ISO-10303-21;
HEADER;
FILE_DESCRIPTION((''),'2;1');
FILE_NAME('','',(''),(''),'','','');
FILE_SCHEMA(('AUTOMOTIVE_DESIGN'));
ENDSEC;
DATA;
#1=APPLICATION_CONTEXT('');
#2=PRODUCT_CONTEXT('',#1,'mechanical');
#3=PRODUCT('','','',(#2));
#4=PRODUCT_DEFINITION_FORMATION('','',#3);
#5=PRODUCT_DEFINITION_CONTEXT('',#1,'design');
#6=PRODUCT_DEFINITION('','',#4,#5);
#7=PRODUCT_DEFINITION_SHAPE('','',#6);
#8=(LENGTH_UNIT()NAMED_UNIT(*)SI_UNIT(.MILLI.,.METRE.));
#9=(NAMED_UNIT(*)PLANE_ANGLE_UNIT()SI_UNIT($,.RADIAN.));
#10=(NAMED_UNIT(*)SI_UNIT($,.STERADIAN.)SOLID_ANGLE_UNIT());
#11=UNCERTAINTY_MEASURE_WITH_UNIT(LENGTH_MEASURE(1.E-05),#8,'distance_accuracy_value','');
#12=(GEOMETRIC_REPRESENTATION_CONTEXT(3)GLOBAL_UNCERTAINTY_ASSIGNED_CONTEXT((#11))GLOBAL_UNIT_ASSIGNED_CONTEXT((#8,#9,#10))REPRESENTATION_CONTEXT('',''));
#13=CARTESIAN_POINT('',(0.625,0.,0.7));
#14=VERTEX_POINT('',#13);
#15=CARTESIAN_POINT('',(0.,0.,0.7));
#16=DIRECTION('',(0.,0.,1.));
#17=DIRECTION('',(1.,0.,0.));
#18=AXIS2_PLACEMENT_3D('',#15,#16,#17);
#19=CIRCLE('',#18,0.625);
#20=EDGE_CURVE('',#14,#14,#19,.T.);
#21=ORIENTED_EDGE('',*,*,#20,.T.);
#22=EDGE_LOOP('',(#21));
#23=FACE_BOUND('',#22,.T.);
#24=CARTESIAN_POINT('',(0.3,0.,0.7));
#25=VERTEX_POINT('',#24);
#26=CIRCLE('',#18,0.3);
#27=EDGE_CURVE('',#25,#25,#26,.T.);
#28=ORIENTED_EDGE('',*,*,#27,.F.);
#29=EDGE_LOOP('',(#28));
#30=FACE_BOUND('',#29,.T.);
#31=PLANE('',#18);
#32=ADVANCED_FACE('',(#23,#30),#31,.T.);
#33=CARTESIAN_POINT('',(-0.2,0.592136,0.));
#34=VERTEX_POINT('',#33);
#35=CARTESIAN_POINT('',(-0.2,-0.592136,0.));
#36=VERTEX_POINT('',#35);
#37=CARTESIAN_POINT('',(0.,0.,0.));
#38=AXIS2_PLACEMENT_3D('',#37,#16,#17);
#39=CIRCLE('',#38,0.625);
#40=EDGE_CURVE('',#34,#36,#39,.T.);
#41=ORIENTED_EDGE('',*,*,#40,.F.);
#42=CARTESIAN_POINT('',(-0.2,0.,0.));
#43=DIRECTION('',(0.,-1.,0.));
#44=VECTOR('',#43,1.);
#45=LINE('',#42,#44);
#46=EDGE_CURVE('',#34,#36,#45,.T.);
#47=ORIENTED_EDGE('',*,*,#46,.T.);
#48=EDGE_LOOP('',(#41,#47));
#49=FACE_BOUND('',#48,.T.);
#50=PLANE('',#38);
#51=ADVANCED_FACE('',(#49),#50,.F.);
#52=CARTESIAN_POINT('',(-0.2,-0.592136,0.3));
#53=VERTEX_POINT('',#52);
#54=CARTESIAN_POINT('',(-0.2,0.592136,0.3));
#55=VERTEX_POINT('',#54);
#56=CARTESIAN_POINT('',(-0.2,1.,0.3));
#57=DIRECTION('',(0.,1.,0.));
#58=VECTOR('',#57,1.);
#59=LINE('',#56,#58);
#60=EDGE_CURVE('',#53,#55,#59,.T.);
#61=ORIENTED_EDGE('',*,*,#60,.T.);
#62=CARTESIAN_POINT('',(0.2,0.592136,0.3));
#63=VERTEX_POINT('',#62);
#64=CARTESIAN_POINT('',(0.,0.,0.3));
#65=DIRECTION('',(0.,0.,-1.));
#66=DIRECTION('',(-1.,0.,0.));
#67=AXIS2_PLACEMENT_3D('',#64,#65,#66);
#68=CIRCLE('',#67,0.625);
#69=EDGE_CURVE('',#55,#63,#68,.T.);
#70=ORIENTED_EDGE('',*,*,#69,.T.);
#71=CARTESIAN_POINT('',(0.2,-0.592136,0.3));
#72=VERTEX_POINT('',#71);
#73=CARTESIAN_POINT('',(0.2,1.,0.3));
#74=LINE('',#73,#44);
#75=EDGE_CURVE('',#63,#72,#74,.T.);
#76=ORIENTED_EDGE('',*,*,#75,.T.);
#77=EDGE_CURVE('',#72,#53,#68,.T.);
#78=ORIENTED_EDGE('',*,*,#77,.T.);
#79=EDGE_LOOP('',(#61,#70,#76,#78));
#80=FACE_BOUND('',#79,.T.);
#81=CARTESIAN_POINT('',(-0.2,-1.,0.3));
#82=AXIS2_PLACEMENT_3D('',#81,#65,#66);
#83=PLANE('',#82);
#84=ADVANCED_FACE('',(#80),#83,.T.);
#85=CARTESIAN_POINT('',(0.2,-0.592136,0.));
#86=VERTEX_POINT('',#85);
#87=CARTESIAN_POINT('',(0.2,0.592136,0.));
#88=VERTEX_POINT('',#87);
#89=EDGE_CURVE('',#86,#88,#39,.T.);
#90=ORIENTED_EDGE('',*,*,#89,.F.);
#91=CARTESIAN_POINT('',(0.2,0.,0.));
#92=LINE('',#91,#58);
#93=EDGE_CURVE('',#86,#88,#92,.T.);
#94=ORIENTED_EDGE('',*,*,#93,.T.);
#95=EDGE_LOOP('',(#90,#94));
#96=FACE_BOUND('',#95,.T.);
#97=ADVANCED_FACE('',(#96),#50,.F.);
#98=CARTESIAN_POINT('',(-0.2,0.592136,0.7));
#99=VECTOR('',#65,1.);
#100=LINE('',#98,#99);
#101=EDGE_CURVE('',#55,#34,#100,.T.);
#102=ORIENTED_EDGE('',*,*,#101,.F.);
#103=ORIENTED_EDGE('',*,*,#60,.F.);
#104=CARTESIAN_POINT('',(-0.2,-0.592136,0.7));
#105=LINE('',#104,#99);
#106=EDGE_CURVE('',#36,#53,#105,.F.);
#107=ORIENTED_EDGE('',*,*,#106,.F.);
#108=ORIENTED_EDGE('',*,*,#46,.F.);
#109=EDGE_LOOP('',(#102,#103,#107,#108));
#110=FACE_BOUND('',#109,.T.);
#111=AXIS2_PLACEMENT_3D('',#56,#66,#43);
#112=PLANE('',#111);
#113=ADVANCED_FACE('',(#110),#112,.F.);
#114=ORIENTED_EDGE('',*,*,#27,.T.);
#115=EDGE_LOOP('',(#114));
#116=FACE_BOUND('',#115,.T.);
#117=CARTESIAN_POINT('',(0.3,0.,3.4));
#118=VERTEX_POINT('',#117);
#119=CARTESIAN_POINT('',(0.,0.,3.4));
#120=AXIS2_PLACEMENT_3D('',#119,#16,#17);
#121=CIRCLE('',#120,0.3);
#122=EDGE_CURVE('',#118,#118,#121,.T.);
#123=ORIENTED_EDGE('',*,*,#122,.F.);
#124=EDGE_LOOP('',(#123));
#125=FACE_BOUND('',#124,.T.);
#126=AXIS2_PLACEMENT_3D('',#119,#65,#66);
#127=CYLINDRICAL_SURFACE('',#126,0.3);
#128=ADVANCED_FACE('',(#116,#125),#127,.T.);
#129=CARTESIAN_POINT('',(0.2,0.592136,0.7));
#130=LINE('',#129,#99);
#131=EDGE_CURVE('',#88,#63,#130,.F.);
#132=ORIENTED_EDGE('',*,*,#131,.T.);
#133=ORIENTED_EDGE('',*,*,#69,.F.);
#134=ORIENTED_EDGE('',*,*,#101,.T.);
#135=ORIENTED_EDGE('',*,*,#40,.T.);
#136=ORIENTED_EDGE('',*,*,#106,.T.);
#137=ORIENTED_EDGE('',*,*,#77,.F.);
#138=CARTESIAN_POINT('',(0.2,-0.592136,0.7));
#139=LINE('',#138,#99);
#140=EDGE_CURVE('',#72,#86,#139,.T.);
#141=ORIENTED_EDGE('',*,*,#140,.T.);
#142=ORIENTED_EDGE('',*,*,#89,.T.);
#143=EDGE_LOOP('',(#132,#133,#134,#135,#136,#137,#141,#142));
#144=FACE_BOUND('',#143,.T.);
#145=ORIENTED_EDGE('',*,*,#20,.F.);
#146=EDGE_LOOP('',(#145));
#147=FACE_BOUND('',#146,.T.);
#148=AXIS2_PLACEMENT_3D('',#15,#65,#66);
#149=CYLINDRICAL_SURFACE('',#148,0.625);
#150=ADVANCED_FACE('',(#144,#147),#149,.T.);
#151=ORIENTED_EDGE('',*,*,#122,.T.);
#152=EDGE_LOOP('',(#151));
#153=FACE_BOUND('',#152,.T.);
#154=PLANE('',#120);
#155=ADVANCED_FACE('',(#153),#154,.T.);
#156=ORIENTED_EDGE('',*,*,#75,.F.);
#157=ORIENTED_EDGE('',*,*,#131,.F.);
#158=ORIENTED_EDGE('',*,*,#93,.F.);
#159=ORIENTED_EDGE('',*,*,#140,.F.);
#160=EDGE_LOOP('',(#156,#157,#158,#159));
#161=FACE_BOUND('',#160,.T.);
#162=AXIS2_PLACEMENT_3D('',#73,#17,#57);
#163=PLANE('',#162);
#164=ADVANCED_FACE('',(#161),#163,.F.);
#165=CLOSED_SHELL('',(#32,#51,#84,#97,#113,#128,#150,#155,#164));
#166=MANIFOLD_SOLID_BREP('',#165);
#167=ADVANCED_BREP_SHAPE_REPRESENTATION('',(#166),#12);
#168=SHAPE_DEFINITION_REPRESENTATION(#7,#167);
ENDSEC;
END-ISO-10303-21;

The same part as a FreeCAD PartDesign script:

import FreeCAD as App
import Part
import Sketcher
Q = App.Units.Quantity

doc = App.newDocument("Part")
params = doc.addObject("Spreadsheet::Sheet", "Params")
for row, (alias, value) in enumerate([
    ("sketch1_diameter", "1.25 mm"),
    ("pad1_length", "0.7 mm"),
    ("sketch2_diameter", "0.6 mm"),
    ("pad2_length", "2.7 mm"),
    ("sketch3_height", "2 mm"),
    ("sketch3_width", "0.4 mm"),
    ("pocket1_length", "0.3 mm"),
], start=1):
    params.set(f"A{row}", alias)
    params.set(f"B{row}", "=" + value)
    params.setAlias(f"B{row}", alias)

body = doc.addObject("PartDesign::Body", "Body")

# Sketch on XY plane
sketch1 = doc.addObject("Sketcher::SketchObject", "Sketch")
body.addObject(sketch1)
sketch1.AttachmentSupport = (doc.XY_Plane, [""])
sketch1.MapMode = "FlatFace"
sketch1.addGeometry(Part.Circle(App.Vector(0, 0, 0), App.Vector(0, 0, 1), 0.6), False)
sketch1.addConstraint([
    Sketcher.Constraint("Coincident", 0, 3, -1, 1),
    Sketcher.Constraint("Diameter", 0, Q("1.25 mm")),
])
sketch1.setExpression("Constraints[1]", "Params.sketch1_diameter")
pad1 = doc.addObject("PartDesign::Pad", "Pad")
body.addObject(pad1)
pad1.Profile = sketch1
pad1.setExpression("Length", "Params.pad1_length")

# Sketch on XY plane
sketch2 = doc.addObject("Sketcher::SketchObject", "Sketch001")
body.addObject(sketch2)
sketch2.AttachmentSupport = (doc.XY_Plane, [""])
sketch2.MapMode = "FlatFace"
sketch2.AttachmentOffset = App.Placement(App.Vector(0, 0, 0.7), App.Rotation())
sketch2.addGeometry(Part.Circle(App.Vector(0, 0, 0), App.Vector(0, 0, 1), 0.3), False)
sketch2.addConstraint([
    Sketcher.Constraint("Coincident", 0, 3, -1, 1),
    Sketcher.Constraint("Diameter", 0, Q("0.6 mm")),
])
sketch2.setExpression("Constraints[1]", "Params.sketch2_diameter")
pad2 = doc.addObject("PartDesign::Pad", "Pad001")
body.addObject(pad2)
pad2.Profile = sketch2
pad2.setExpression("Length", "Params.pad2_length")

# Sketch on XY plane
sketch3 = doc.addObject("Sketcher::SketchObject", "Sketch002")
body.addObject(sketch3)
sketch3.AttachmentSupport = (doc.XY_Plane, [""])
sketch3.MapMode = "FlatFace"
sketch3.addGeometry([
    Part.LineSegment(App.Vector(0.2, 1, 0), App.Vector(0.2, -1, 0)),
    Part.LineSegment(App.Vector(0.2, -1, 0), App.Vector(-0.2, -1, 0)),
    Part.LineSegment(App.Vector(-0.2, -1, 0), App.Vector(-0.2, 1, 0)),
    Part.LineSegment(App.Vector(-0.2, 1, 0), App.Vector(0.2, 1, 0)),
], False)
sketch3.addConstraint([
    Sketcher.Constraint("Coincident", 0, 2, 1, 1),
    Sketcher.Constraint("Coincident", 1, 2, 2, 1),
    Sketcher.Constraint("Coincident", 2, 2, 3, 1),
    Sketcher.Constraint("Coincident", 3, 2, 0, 1),
    Sketcher.Constraint("Vertical", 0),
    Sketcher.Constraint("Horizontal", 1),
    Sketcher.Constraint("Vertical", 2),
    Sketcher.Constraint("Horizontal", 3),
    Sketcher.Constraint("Symmetric", 0, 2, 2, 2, -1, 1),
    Sketcher.Constraint("DistanceY", 0, 2, 0, 1, Q("2 mm")),
    Sketcher.Constraint("DistanceX", 1, 2, 1, 1, Q("0.4 mm")),
])
sketch3.setExpression("Constraints[9]", "Params.sketch3_height")
sketch3.setExpression("Constraints[10]", "Params.sketch3_width")
pocket1 = doc.addObject("PartDesign::Pocket", "Pocket")
body.addObject(pocket1)
pocket1.Profile = sketch3
pocket1.setExpression("Length", "Params.pocket1_length")
pocket1.Reversed = True

doc.recompute()
